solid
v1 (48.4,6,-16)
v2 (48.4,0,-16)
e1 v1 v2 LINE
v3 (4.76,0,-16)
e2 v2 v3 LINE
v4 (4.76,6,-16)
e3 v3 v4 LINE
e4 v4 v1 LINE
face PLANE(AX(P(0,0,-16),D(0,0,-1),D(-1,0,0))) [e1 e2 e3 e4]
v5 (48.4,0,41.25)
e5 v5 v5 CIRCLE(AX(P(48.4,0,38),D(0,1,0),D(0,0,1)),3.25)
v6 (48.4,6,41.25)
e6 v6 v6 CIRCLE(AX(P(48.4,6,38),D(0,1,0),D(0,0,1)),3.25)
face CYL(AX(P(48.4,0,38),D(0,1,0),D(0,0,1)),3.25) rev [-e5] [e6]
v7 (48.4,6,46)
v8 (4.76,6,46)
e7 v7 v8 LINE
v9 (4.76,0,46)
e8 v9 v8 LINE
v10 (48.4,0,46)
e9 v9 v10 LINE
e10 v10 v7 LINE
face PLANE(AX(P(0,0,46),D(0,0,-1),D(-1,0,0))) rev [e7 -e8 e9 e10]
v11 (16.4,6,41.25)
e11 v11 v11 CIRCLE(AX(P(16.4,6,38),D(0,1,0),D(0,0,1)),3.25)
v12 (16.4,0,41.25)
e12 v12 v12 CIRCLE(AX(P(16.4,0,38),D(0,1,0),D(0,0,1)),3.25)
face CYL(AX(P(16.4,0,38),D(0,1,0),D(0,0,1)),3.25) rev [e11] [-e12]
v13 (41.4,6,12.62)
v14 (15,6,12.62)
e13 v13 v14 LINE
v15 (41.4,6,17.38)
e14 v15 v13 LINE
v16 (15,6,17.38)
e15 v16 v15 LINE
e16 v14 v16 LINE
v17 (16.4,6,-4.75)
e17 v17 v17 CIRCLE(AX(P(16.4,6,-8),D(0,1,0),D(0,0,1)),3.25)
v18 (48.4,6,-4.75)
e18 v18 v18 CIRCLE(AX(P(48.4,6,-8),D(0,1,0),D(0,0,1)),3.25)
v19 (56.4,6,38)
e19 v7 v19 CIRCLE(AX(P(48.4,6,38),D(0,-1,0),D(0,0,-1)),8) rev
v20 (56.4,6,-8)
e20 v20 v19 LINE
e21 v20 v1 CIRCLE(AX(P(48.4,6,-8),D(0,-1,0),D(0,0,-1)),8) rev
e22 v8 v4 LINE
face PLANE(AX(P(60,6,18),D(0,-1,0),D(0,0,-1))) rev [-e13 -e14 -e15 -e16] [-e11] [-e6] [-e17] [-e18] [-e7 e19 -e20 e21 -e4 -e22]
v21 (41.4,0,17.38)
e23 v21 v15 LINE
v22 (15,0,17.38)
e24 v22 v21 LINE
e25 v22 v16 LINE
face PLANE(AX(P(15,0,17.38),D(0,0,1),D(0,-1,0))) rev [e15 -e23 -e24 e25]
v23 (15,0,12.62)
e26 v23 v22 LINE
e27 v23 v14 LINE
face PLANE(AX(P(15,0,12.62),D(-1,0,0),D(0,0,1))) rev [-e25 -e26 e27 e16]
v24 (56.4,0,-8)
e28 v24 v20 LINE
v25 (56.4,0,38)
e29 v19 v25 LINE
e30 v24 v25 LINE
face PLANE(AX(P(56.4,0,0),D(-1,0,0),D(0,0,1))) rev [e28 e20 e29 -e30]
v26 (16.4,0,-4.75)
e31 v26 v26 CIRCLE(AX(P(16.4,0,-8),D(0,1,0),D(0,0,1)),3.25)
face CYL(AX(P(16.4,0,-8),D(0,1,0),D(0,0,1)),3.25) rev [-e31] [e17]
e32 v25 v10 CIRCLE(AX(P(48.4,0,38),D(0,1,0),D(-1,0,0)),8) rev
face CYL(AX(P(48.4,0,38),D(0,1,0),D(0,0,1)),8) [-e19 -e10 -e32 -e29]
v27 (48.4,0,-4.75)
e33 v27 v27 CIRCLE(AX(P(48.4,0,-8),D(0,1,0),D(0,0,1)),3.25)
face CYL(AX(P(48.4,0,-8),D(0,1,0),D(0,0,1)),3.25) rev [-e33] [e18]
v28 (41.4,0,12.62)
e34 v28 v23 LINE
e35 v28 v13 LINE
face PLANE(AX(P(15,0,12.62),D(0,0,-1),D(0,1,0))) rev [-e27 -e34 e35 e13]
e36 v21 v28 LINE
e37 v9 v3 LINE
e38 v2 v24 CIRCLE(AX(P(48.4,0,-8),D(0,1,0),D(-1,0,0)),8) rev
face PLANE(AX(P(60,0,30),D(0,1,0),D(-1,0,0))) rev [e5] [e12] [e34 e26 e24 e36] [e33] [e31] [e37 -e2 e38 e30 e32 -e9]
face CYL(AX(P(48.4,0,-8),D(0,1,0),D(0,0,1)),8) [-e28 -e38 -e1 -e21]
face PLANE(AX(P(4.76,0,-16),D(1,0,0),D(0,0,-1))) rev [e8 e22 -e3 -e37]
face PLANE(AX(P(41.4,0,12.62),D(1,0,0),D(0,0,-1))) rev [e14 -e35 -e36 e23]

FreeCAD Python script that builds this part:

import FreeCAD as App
import Part
import Sketcher

V = App.Vector
Q = App.Units.Quantity


def edges_at(feature, points):
    """Names of the edges that pass closest to the given points."""
    edges = feature.Shape.Edges
    near = lambda p: min(range(len(edges)), key=lambda i: edges[i].distToShape(Part.Vertex(*p))[0])
    return sorted({f"Edge{near(p) + 1}" for p in points})

doc = App.newDocument("Part")
body = doc.addObject("PartDesign::Body", "Body")

sketch1 = body.newObject("Sketcher::SketchObject", "Sketch")
sketch1.AttachmentSupport = (doc.getObject("XY_Plane"), [""])
sketch1.MapMode = "FlatFace"
sketch1.addGeometry([
    Part.LineSegment(V(0, 100, 0), V(0, 0, 0)),
    Part.LineSegment(V(0, 0, 0), V(60, 0, 0)),
    Part.LineSegment(V(60, 0, 0), V(0, 100, 0)),
], False)
sketch1.addConstraint([
    Sketcher.Constraint("Coincident", 0, 2, 1, 1),
    Sketcher.Constraint("Coincident", 1, 2, 2, 1),
    Sketcher.Constraint("Coincident", 2, 2, 0, 1),
    Sketcher.Constraint("Vertical", 0),
    Sketcher.Constraint("Horizontal", 1),
    Sketcher.Constraint("Coincident", 0, 2, -1, 1),
    Sketcher.Constraint("DistanceX", 1, 1, 1, 2, Q("60 mm")),
    Sketcher.Constraint("DistanceY", 0, 2, 0, 1, Q("100 mm")),
])
pad1 = body.newObject("PartDesign::Pad", "Pad")
pad1.Profile = sketch1
pad1.Length = 30

sketch2 = body.newObject("Sketcher::SketchObject", "Sketch001")
sketch2.AttachmentSupport = (doc.getObject("YZ_Plane"), [""])
sketch2.MapMode = "FlatFace"
sketch2.AttachmentOffset = App.Placement(V(0, 0, 6), App.Rotation())
sketch2.addGeometry([
    Part.LineSegment(V(100, 18, 0), V(6, 18, 0)),
    Part.LineSegment(V(6, 18, 0), V(6, 30, 0)),
    Part.LineSegment(V(6, 30, 0), V(100, 30, 0)),
    Part.LineSegment(V(100, 30, 0), V(100, 18, 0)),
    Part.LineSegment(V(100, 0, 0), V(6, 0, 0)),
    Part.LineSegment(V(6, 0, 0), V(6, 12, 0)),
    Part.LineSegment(V(6, 12, 0), V(100, 12, 0)),
    Part.LineSegment(V(100, 12, 0), V(100, 0, 0)),
], False)
sketch2.addConstraint([
    Sketcher.Constraint("Coincident", 0, 2, 1, 1),
    Sketcher.Constraint("Coincident", 1, 2, 2, 1),
    Sketcher.Constraint("Coincident", 2, 2, 3, 1),
    Sketcher.Constraint("Coincident", 3, 2, 0, 1),
    Sketcher.Constraint("Coincident", 4, 2, 5, 1),
    Sketcher.Constraint("Coincident", 5, 2, 6, 1),
    Sketcher.Constraint("Coincident", 6, 2, 7, 1),
    Sketcher.Constraint("Coincident", 7, 2, 4, 1),
    Sketcher.Constraint("Horizontal", 0),
    Sketcher.Constraint("Vertical", 1),
    Sketcher.Constraint("Horizontal", 2),
    Sketcher.Constraint("Vertical", 3),
    Sketcher.Constraint("Horizontal", 4),
    Sketcher.Constraint("Vertical", 5),
    Sketcher.Constraint("Horizontal", 6),
    Sketcher.Constraint("Vertical", 7),
    Sketcher.Constraint("PointOnObject", 4, 2, -1),
    Sketcher.Constraint("Vertical", 1, 2, 4, 2),
    Sketcher.Constraint("Vertical", 3, 2, 6, 2),
    Sketcher.Constraint("Equal", 3, 5),
    Sketcher.Constraint("DistanceX", 0, 2, 0, 1, Q("94 mm")),
    Sketcher.Constraint("DistanceY", 1, 1, 1, 2, Q("12 mm")),
    Sketcher.Constraint("DistanceX", -1, 1, 0, 2, Q("6 mm")),
    Sketcher.Constraint("DistanceY", -1, 1, 0, 2, Q("18 mm")),
])
pocket1 = body.newObject("PartDesign::Pocket", "Pocket")
pocket1.Profile = sketch2
pocket1.Type = "ThroughAll"
pocket1.Reversed = True

sketch3 = body.newObject("Sketcher::SketchObject", "Sketch002")
sketch3.AttachmentSupport = (doc.getObject("YZ_Plane"), [""])
sketch3.MapMode = "FlatFace"
sketch3.AttachmentOffset = App.Placement(V(0, 0, 6), App.Rotation())
sketch3.addGeometry([
    Part.LineSegment(V(100, 30, 0), V(90, 30, 0)),
    Part.LineSegment(V(90, 30, 0), V(90, 0, 0)),
    Part.LineSegment(V(90, 0, 0), V(100, 0, 0)),
    Part.LineSegment(V(100, 0, 0), V(100, 30, 0)),
], False)
sketch3.addConstraint([
    Sketcher.Constraint("Coincident", 0, 2, 1, 1),
    Sketcher.Constraint("Coincident", 1, 2, 2, 1),
    Sketcher.Constraint("Coincident", 2, 2, 3, 1),
    Sketcher.Constraint("Coincident", 3, 2, 0, 1),
    Sketcher.Constraint("Horizontal", 0),
    Sketcher.Constraint("Vertical", 1),
    Sketcher.Constraint("Horizontal", 2),
    Sketcher.Constraint("Vertical", 3),
    Sketcher.Constraint("PointOnObject", 1, 2, -1),
    Sketcher.Constraint("DistanceX", 0, 2, 0, 1, Q("10 mm")),
    Sketcher.Constraint("DistanceY", 1, 2, 1, 1, Q("30 mm")),
    Sketcher.Constraint("DistanceX", -1, 1, 0, 2, Q("90 mm")),
])
pocket2 = body.newObject("PartDesign::Pocket", "Pocket001")
pocket2.Profile = sketch3
pocket2.Type = "ThroughAll"

sketch4 = body.newObject("Sketcher::SketchObject", "Sketch003")
sketch4.AttachmentSupport = (doc.getObject("XZ_Plane"), [""])
sketch4.MapMode = "FlatFace"
sketch4.AttachmentOffset = App.Placement(V(0, 0, -6), App.Rotation())
sketch4.addGeometry([
    Part.LineSegment(V(56.4, 0, 0), V(56.4, 30, 0)),
    Part.LineSegment(V(56.4, 30, 0), V(60, 30, 0)),
    Part.LineSegment(V(60, 30, 0), V(60, 0, 0)),
    Part.LineSegment(V(60, 0, 0), V(56.4, 0, 0)),
], False)
sketch4.addConstraint([
    Sketcher.Constraint("Coincident", 0, 2, 1, 1),
    Sketcher.Constraint("Coincident", 1, 2, 2, 1),
    Sketcher.Constraint("Coincident", 2, 2, 3, 1),
    Sketcher.Constraint("Coincident", 3, 2, 0, 1),
    Sketcher.Constraint("Vertical", 0),
    Sketcher.Constraint("Horizontal", 1),
    Sketcher.Constraint("Vertical", 2),
    Sketcher.Constraint("Horizontal", 3),
    Sketcher.Constraint("PointOnObject", 2, 2, -1),
    Sketcher.Constraint("DistanceY", 0, 1, 0, 2, Q("30 mm")),
    Sketcher.Constraint("DistanceX", 1, 1, 1, 2, Q("3.6 mm")),
    Sketcher.Constraint("DistanceX", -1, 1, 1, 2, Q("60 mm")),
])
pocket3 = body.newObject("PartDesign::Pocket", "Pocket002")
pocket3.Profile = sketch4
pocket3.Type = "ThroughAll"
pocket3.Reversed = True

sketch5 = body.newObject("Sketcher::SketchObject", "Sketch004")
sketch5.AttachmentSupport = (doc.getObject("XY_Plane"), [""])
sketch5.MapMode = "FlatFace"
sketch5.AttachmentOffset = App.Placement(V(0, 0, 30), App.Rotation())
sketch5.addGeometry([
    Part.LineSegment(V(0, 6, 0), V(0, 0, 0)),
    Part.LineSegment(V(0, 0, 0), V(56, 0, 0)),
    Part.LineSegment(V(56, 0, 0), V(56, 6, 0)),
    Part.LineSegment(V(56, 6, 0), V(0, 6, 0)),
], False)
sketch5.addConstraint([
    Sketcher.Constraint("Coincident", 0, 2, 1, 1),
    Sketcher.Constraint("Coincident", 1, 2, 2, 1),
    Sketcher.Constraint("Coincident", 2, 2, 3, 1),
    Sketcher.Constraint("Coincident", 3, 2, 0, 1),
    Sketcher.Constraint("Vertical", 0),
    Sketcher.Constraint("Horizontal", 1),
    Sketcher.Constraint("Vertical", 2),
    Sketcher.Constraint("Horizontal", 3),
    Sketcher.Constraint("Coincident", 0, 2, -1, 1),
    Sketcher.Constraint("DistanceY", 0, 2, 0, 1, Q("6 mm")),
    Sketcher.Constraint("DistanceX", 1, 1, 1, 2, Q("56.4 mm")),
])
pad2 = body.newObject("PartDesign::Pad", "Pad001")
pad2.Profile = sketch5
pad2.Length = 16

sketch6 = body.newObject("Sketcher::SketchObject", "Sketch005")
sketch6.AttachmentSupport = (doc.getObject("XY_Plane"), [""])
sketch6.MapMode = "FlatFace"
sketch6.addGeometry([
    Part.LineSegment(V(56, 6, 0), V(56, 0, 0)),
    Part.LineSegment(V(56, 0, 0), V(0, 0, 0)),
    Part.LineSegment(V(0, 0, 0), V(0, 6, 0)),
    Part.LineSegment(V(0, 6, 0), V(56, 6, 0)),
], False)
sketch6.addConstraint([
    Sketcher.Constraint("Coincident", 0, 2, 1, 1),
    Sketcher.Constraint("Coincident", 1, 2, 2, 1),
    Sketcher.Constraint("Coincident", 2, 2, 3, 1),
    Sketcher.Constraint("Coincident", 3, 2, 0, 1),
    Sketcher.Constraint("Vertical", 0),
    Sketcher.Constraint("Horizontal", 1),
    Sketcher.Constraint("Vertical", 2),
    Sketcher.Constraint("Horizontal", 3),
    Sketcher.Constraint("Coincident", 1, 2, -1, 1),
    Sketcher.Constraint("DistanceY", 0, 2, 0, 1, Q("6 mm")),
    Sketcher.Constraint("DistanceX", 1, 2, 1, 1, Q("56.4 mm")),
])
pad3 = body.newObject("PartDesign::Pad", "Pad002")
pad3.Profile = sketch6
pad3.Length = 16
pad3.Reversed = True
doc.recompute()

fillet = body.newObject("PartDesign::Fillet", "Fillet")
fillet.Base = (pad3, edges_at(pad3, [(3, 6, 0), (3, 6, 30)]))
fillet.Radius = 8
doc.recompute()

fillet2 = body.newObject("PartDesign::Fillet", "Fillet001")
fillet2.Base = (fillet, edges_at(fillet, [(56.4, 3, -16), (56.4, 3, 46)]))
fillet2.Radius = 8
doc.recompute()

fillet3 = body.newObject("PartDesign::Fillet", "Fillet002")
fillet3.Base = (fillet2, edges_at(fillet2, [(3, 90, 30), (3, 90, 0)]))
fillet3.Radius = 8
doc.recompute()

fillet4 = body.newObject("PartDesign::Fillet", "Fillet003")
fillet4.Base = (fillet3, edges_at(fillet3, [(31.2, 6, 18), (31.2, 6, 12)]))
fillet4.Radius = 4

sketch7 = body.newObject("Sketcher::SketchObject", "Sketch006")
sketch7.AttachmentSupport = (doc.getObject("YZ_Plane"), [""])
sketch7.MapMode = "FlatFace"
sketch7.AttachmentOffset = App.Placement(V(0, 0, 6), App.Rotation())
sketch7.addGeometry([
    Part.Circle(V(78, 23, 0), V(0, 0, 1), 3.2),
    Part.Circle(V(48, 23, 0), V(0, 0, 1), 3.2),
    Part.Circle(V(18, 23, 0), V(0, 0, 1), 3.2),
    Part.Circle(V(18, 7, 0), V(0, 0, 1), 3.2),
    Part.Circle(V(48, 7, 0), V(0, 0, 1), 3.2),
    Part.Circle(V(78, 7, 0), V(0, 0, 1), 3.2),
], False)
sketch7.addConstraint([
    Sketcher.Constraint("Equal", 0, 1),
    Sketcher.Constraint("Equal", 1, 2),
    Sketcher.Constraint("Equal", 2, 3),
    Sketcher.Constraint("Equal", 3, 4),
    Sketcher.Constraint("Equal", 4, 5),
    Sketcher.Constraint("Horizontal", 0, 3, 1, 3),
    Sketcher.Constraint("Horizontal", 1, 3, 2, 3),
    Sketcher.Constraint("Horizontal", 3, 3, 4, 3),
    Sketcher.Constraint("Horizontal", 4, 3, 5, 3),
    Sketcher.Constraint("Vertical", 2, 3, 3, 3),
    Sketcher.Constraint("Vertical", 1, 3, 4, 3),
    Sketcher.Constraint("Vertical", 0, 3, 5, 3),
    Sketcher.Constraint("Diameter", 0, Q("6.35 mm")),
    Sketcher.Constraint("DistanceX", -1, 1, 0, 3, Q("78 mm")),
    Sketcher.Constraint("DistanceY", -1, 1, 0, 3, Q("23 mm")),
    Sketcher.Constraint("DistanceX", -1, 1, 1, 3, Q("48 mm")),
    Sketcher.Constraint("DistanceX", -1, 1, 2, 3, Q("18 mm")),
    Sketcher.Constraint("DistanceY", -1, 1, 3, 3, Q("7 mm")),
])
pocket4 = body.newObject("PartDesign::Pocket", "Pocket003")
pocket4.Profile = sketch7
pocket4.Type = "ThroughAll"

sketch8 = body.newObject("Sketcher::SketchObject", "Sketch007")
sketch8.AttachmentSupport = (doc.getObject("XZ_Plane"), [""])
sketch8.MapMode = "FlatFace"
sketch8.AttachmentOffset = App.Placement(V(0, 0, -6), App.Rotation())
sketch8.addGeometry([
    Part.Circle(V(48.4, -8, 0), V(0, 0, 1), 3.2),
    Part.Circle(V(48.4, 38, 0), V(0, 0, 1), 3.2),
    Part.Circle(V(16.4, 38, 0), V(0, 0, 1), 3.2),
    Part.Circle(V(16.4, -8, 0), V(0, 0, 1), 3.2),
], False)
sketch8.addConstraint([
    Sketcher.Constraint("Equal", 0, 1),
    Sketcher.Constraint("Equal", 1, 2),
    Sketcher.Constraint("Equal", 2, 3),
    Sketcher.Constraint("Horizontal", 1, 3, 2, 3),
    Sketcher.Constraint("Horizontal", 0, 3, 3, 3),
    Sketcher.Constraint("Vertical", 0, 3, 1, 3),
    Sketcher.Constraint("Vertical", 2, 3, 3, 3),
    Sketcher.Constraint("Diameter", 0, Q("6.5 mm")),
    Sketcher.Constraint("DistanceY", 0, 3, -1, 1, Q("8 mm")),
    Sketcher.Constraint("DistanceY", -1, 1, 1, 3, Q("38 mm")),
    Sketcher.Constraint("DistanceX", 2, 3, 1, 3, Q("32 mm")),
    Sketcher.Constraint("DistanceX", -1, 1, 0, 3, Q("48.4 mm")),
])
pocket5 = body.newObject("PartDesign::Pocket", "Pocket004")
pocket5.Profile = sketch8
pocket5.Type = "ThroughAll"
pocket5.Reversed = True

sketch9 = body.newObject("Sketcher::SketchObject", "Sketch008")
sketch9.AttachmentSupport = (doc.getObject("XZ_Plane"), [""])
sketch9.MapMode = "FlatFace"
sketch9.AttachmentOffset = App.Placement(V(0, 0, -6), App.Rotation())
sketch9.addGeometry([
    Part.LineSegment(V(0, -16, 0), V(0, 46, 0)),
    Part.LineSegment(V(0, 46, 0), V(56, 46, 0)),
    Part.LineSegment(V(56, 46, 0), V(56, -16, 0)),
    Part.LineSegment(V(56, -16, 0), V(0, -16, 0)),
], False)
sketch9.addConstraint([
    Sketcher.Constraint("Coincident", 0, 2, 1, 1),
    Sketcher.Constraint("Coincident", 1, 2, 2, 1),
    Sketcher.Constraint("Coincident", 2, 2, 3, 1),
    Sketcher.Constraint("Coincident", 3, 2, 0, 1),
    Sketcher.Constraint("Vertical", 0),
    Sketcher.Constraint("Horizontal", 1),
    Sketcher.Constraint("Vertical", 2),
    Sketcher.Constraint("Horizontal", 3),
    Sketcher.Constraint("PointOnObject", 0, 2, -2),
    Sketcher.Constraint("DistanceY", 0, 1, 0, 2, Q("62 mm")),
    Sketcher.Constraint("DistanceX", 1, 1, 1, 2, Q("56.4 mm")),
    Sketcher.Constraint("DistanceY", -1, 1, 0, 2, Q("46 mm")),
])
pocket6 = body.newObject("PartDesign::Pocket", "Pocket005")
pocket6.Profile = sketch9
pocket6.Type = "ThroughAll"

sketch10 = body.newObject("Sketcher::SketchObject", "Sketch009")
sketch10.AttachmentSupport = (doc.getObject("XZ_Plane"), [""])
sketch10.MapMode = "FlatFace"
sketch10.AttachmentOffset = App.Placement(V(0, 0, -6), App.Rotation())
sketch10.addGeometry([
    Part.LineSegment(V(15, 12.6, 0), V(15, 17.4, 0)),
    Part.LineSegment(V(15, 17.4, 0), V(41.4, 17.4, 0)),
    Part.LineSegment(V(41.4, 17.4, 0), V(41.4, 12.6, 0)),
    Part.LineSegment(V(41.4, 12.6, 0), V(15, 12.6, 0)),
], False)
sketch10.addConstraint([
    Sketcher.Constraint("Coincident", 0, 2, 1, 1),
    Sketcher.Constraint("Coincident", 1, 2, 2, 1),
    Sketcher.Constraint("Coincident", 2, 2, 3, 1),
    Sketcher.Constraint("Coincident", 3, 2, 0, 1),
    Sketcher.Constraint("Vertical", 0),
    Sketcher.Constraint("Horizontal", 1),
    Sketcher.Constraint("Vertical", 2),
    Sketcher.Constraint("Horizontal", 3),
    Sketcher.Constraint("DistanceX", 1, 1, 1, 2, Q("26.4 mm")),
    Sketcher.Constraint("DistanceX", -1, 1, 0, 2, Q("15 mm")),
    Sketcher.Constraint("DistanceY", 0, 1, 0, 2, Q("4.76 mm")),
    Sketcher.Constraint("DistanceY", -1, 1, 0, 2, Q("17.38 mm")),
])
pocket7 = body.newObject("PartDesign::Pocket", "Pocket006")
pocket7.Profile = sketch10
pocket7.Type = "ThroughAll"
pocket7.Reversed = True

sketch11 = body.newObject("Sketcher::SketchObject", "Sketch010")
sketch11.AttachmentSupport = (doc.getObject("XZ_Plane"), [""])
sketch11.MapMode = "FlatFace"
sketch11.AttachmentOffset = App.Placement(V(0, 0, -6), App.Rotation())
sketch11.addGeometry([
    Part.LineSegment(V(0, -16, 0), V(0, 46, 0)),
    Part.LineSegment(V(0, 46, 0), V(4.8, 46, 0)),
    Part.LineSegment(V(4.8, 46, 0), V(4.8, -16, 0)),
    Part.LineSegment(V(4.8, -16, 0), V(0, -16, 0)),
], False)
sketch11.addConstraint([
    Sketcher.Constraint("Coincident", 0, 2, 1, 1),
    Sketcher.Constraint("Coincident", 1, 2, 2, 1),
    Sketcher.Constraint("Coincident", 2, 2, 3, 1),
    Sketcher.Constraint("Coincident", 3, 2, 0, 1),
    Sketcher.Constraint("Vertical", 0),
    Sketcher.Constraint("Horizontal", 1),
    Sketcher.Constraint("Vertical", 2),
    Sketcher.Constraint("Horizontal", 3),
    Sketcher.Constraint("PointOnObject", 0, 2, -2),
    Sketcher.Constraint("DistanceY", 0, 1, 0, 2, Q("62 mm")),
    Sketcher.Constraint("DistanceY", -1, 1, 0, 2, Q("46 mm")),
    Sketcher.Constraint("DistanceX", 1, 1, 1, 2, Q("4.76 mm")),
])
pocket8 = body.newObject("PartDesign::Pocket", "Pocket007")
pocket8.Profile = sketch11
pocket8.Type = "ThroughAll"
pocket8.Reversed = True

doc.recompute()
